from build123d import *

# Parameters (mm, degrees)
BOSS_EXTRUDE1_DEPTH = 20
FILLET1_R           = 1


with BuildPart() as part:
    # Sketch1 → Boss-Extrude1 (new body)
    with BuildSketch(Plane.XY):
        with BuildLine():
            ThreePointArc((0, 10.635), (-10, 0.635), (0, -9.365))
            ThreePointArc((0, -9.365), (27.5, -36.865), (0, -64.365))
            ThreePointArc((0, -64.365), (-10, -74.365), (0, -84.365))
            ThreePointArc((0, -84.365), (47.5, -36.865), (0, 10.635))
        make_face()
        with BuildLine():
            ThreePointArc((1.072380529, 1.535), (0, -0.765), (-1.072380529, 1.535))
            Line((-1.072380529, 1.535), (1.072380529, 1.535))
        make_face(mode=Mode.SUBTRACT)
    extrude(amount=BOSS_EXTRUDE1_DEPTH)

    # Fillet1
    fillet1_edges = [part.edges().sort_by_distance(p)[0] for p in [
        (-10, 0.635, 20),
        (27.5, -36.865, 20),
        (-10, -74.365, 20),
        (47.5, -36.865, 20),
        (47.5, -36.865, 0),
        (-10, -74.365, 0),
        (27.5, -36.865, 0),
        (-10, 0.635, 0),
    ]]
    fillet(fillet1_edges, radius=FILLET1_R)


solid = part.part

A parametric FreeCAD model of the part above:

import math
import FreeCAD as App
import Part
import Sketcher

V = App.Vector
Q = App.Units.Quantity


def edges_at(feature, points):
    """Names of the edges that pass closest to the given points."""
    edges = feature.Shape.Edges
    near = lambda p: min(range(len(edges)), key=lambda i: edges[i].distToShape(Part.Vertex(*p))[0])
    return sorted({f"Edge{near(p) + 1}" for p in points})

doc = App.newDocument("Part")
params = doc.addObject("Spreadsheet::Sheet", "Params")
for row, (alias, value) in enumerate([
    ("sketch1_radius", "10 mm"),
    ("sketch1_radius2", "27.5 mm"),
    ("sketch1_radius3", "1.4 mm"),
    ("pad1_length", "20 mm"),
    ("fillet_radius", "1 mm"),
], start=1):
    params.set(f"A{row}", alias)
    params.set(f"B{row}", "=" + value)
    params.setAlias(f"B{row}", alias)

body = doc.addObject("PartDesign::Body", "Body")

# Sketch on XY plane
sketch1 = body.newObject("Sketcher::SketchObject", "Sketch")
sketch1.AttachmentSupport = (doc.getObject("XY_Plane"), [""])
sketch1.MapMode = "FlatFace"
sketch1.addGeometry([
    Part.ArcOfCircle(Part.Circle(V(0, 0.6, 0), V(0, 0, 1), 10), math.radians(90), math.radians(270)),  # 0
    Part.ArcOfCircle(Part.Circle(V(0, -36.9, 0), V(0, 0, 1), 27.5), math.radians(-90), math.radians(90)),  # 1
    Part.ArcOfCircle(Part.Circle(V(0, -74.4, 0), V(0, 0, 1), 10), math.radians(90), math.radians(270)),  # 2
    Part.ArcOfCircle(Part.Circle(V(0, -36.9, 0), V(0, 0, 1), 47.5), math.radians(-90), math.radians(90)),  # 3
    Part.LineSegment(V(-1.1, 1.5, 0), V(1.1, 1.5, 0)),  # 4
    Part.ArcOfCircle(Part.Circle(V(0, 0.6, 0), V(0, 0, 1), 1.4), math.radians(140), math.radians(400)),  # 5
], False)
sketch1.addConstraint([
    Sketcher.Constraint("Tangent", 0, 2, 1, 2),
    Sketcher.Constraint("Tangent", 1, 1, 2, 1),
    Sketcher.Constraint("Tangent", 2, 2, 3, 1),
    Sketcher.Constraint("Tangent", 3, 2, 0, 1),
    Sketcher.Constraint("Coincident", 4, 1, 5, 1),
    Sketcher.Constraint("Coincident", 5, 2, 4, 2),
    Sketcher.Constraint("Horizontal", 4),
    Sketcher.Constraint("Coincident", 3, 3, 1, 3),
    Sketcher.Constraint("Coincident", 5, 3, 0, 3),
    Sketcher.Constraint("PointOnObject", 0, 3, -2),
    Sketcher.Constraint("PointOnObject", 1, 3, -2),
    Sketcher.Constraint("PointOnObject", 2, 3, -2),
    Sketcher.Constraint("Radius", 0, Q("10 mm")),
    Sketcher.Constraint("Radius", 1, Q("27.5 mm")),
    Sketcher.Constraint("Radius", 5, Q("1.4 mm")),
    Sketcher.Constraint("DistanceY", 0, 3, 4, 1, Q("0.9 mm")),
    Sketcher.Constraint("DistanceY", -1, 1, 0, 3, Q("0.635 mm")),
])
sketch1.setExpression("Constraints[12]", "Params.sketch1_radius")
sketch1.setExpression("Constraints[13]", "Params.sketch1_radius2")
sketch1.setExpression("Constraints[14]", "Params.sketch1_radius3")
pad1 = body.newObject("PartDesign::Pad", "Pad")
pad1.Profile = sketch1
pad1.setExpression("Length", "Params.pad1_length")
doc.recompute()

fillet = body.newObject("PartDesign::Fillet", "Fillet")
fillet.Base = (pad1, edges_at(pad1, [
    (-10, 0.635, 20),
    (27.5, -36.865, 20),
    (-10, -74.365, 20),
    (47.5, -36.865, 20),
    (47.5, -36.865, 0),
    (-10, -74.365, 0),
    (27.5, -36.865, 0),
    (-10, 0.635, 0),
]))
fillet.setExpression("Radius", "Params.fillet_radius")

doc.recompute()
